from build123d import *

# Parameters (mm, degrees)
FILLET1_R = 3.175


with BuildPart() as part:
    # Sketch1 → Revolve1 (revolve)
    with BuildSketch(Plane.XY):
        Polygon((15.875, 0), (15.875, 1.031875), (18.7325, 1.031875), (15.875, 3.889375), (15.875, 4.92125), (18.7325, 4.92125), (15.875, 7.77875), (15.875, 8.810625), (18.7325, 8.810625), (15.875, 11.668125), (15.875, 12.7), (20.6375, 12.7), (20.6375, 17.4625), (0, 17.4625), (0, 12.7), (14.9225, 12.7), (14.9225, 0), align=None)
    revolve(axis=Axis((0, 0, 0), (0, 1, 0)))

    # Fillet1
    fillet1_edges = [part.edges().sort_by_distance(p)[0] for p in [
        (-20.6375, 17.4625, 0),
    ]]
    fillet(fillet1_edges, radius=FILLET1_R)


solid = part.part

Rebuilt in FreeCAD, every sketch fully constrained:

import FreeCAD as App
import Part
import Sketcher
Q = App.Units.Quantity


def edges_at(feature, points):
    """Names of the edges that pass closest to the given points."""
    edges = feature.Shape.Edges
    near = lambda p: min(range(len(edges)), key=lambda i: edges[i].distToShape(Part.Vertex(*p))[0])
    return sorted({f"Edge{near(p) + 1}" for p in points})


def add_polygon(sketch, points):
    """Adds a closed chain of lines whose ends are joined by coincident constraints."""
    first, n = sketch.GeometryCount, len(points)
    for a, b in zip(points, points[1:] + points[:1]):
        sketch.addGeometry(Part.LineSegment(App.Vector(*a, 0), App.Vector(*b, 0)), False)
    for i in range(n):
        sketch.addConstraint(Sketcher.Constraint("Coincident", first + i, 2, first + (i + 1) % n, 1))

doc = App.newDocument("Part")
body = doc.addObject("PartDesign::Body", "Body")

# Sketch on XY plane
sketch1 = doc.addObject("Sketcher::SketchObject", "Sketch")
body.addObject(sketch1)
sketch1.AttachmentSupport = (doc.XY_Plane, [""])
sketch1.MapMode = "FlatFace"
add_polygon(sketch1, [(15.875, 0), (15.875, 1.031875), (18.7325, 1.031875), (15.875, 3.889375), (15.875, 4.92125), (18.7325, 4.92125), (15.875, 7.77875), (15.875, 8.810625), (18.7325, 8.810625), (15.875, 11.668125), (15.875, 12.7), (20.6375, 12.7), (20.6375, 17.4625), (0, 17.4625), (0, 12.7), (14.9225, 12.7), (14.9225, 0)])  # lines 0-16
sketch1.addConstraint([
    Sketcher.Constraint("Vertical", 0),
    Sketcher.Constraint("Horizontal", 1),
    Sketcher.Constraint("Vertical", 3),
    Sketcher.Constraint("Horizontal", 4),
    Sketcher.Constraint("Vertical", 6),
    Sketcher.Constraint("Horizontal", 7),
    Sketcher.Constraint("Vertical", 9),
    Sketcher.Constraint("Horizontal", 10),
    Sketcher.Constraint("Vertical", 11),
    Sketcher.Constraint("Horizontal", 12),
    Sketcher.Constraint("Vertical", 13),
    Sketcher.Constraint("Horizontal", 14),
    Sketcher.Constraint("Vertical", 15),
    Sketcher.Constraint("Horizontal", 16),
    Sketcher.Constraint("PointOnObject", 12, 2, -2),
    Sketcher.Constraint("PointOnObject", 15, 2, -1),
    Sketcher.Constraint("Parallel", 2, 5),
    Sketcher.Constraint("Parallel", 5, 8),
    Sketcher.Constraint("Horizontal", 10, 2, 13, 2),
    Sketcher.Constraint("Vertical", 0, 2, 2, 2),
    Sketcher.Constraint("Vertical", 1, 2, 4, 2),
    Sketcher.Constraint("Vertical", 3, 2, 5, 2),
    Sketcher.Constraint("Vertical", 4, 2, 7, 2),
    Sketcher.Constraint("Vertical", 6, 2, 8, 2),
    Sketcher.Constraint("Equal", 0, 3),
    Sketcher.Constraint("Equal", 3, 6),
    Sketcher.Constraint("Equal", 6, 9),
    Sketcher.Constraint("Equal", 10, 11),
    Sketcher.Constraint("DistanceY", 15, 2, 15, 1, Q("0.5 in")),
    Sketcher.Constraint("Angle", 2, Q("135 deg")),
    Sketcher.Constraint("DistanceX", 10, 1, 10, 2, Q("0.1875 in")),
    Sketcher.Constraint("DistanceX", 12, 2, 12, 1, Q("0.8125 in")),
    Sketcher.Constraint("DistanceX", 14, 2, 7, 2, Q("0.15 in")),
    Sketcher.Constraint("DistanceX", 1, 1, 1, 2, Q("0.1125 in")),
])
revolution = doc.addObject("PartDesign::Revolution", "Revolution")
body.addObject(revolution)
revolution.Profile = sketch1
revolution.ReferenceAxis = (sketch1, ["V_Axis"])
revolution.Angle = 360
doc.recompute()

fillet = doc.addObject("PartDesign::Fillet", "Fillet")
body.addObject(fillet)
fillet.Base = (revolution, edges_at(revolution, [(-20.637, 17.462, 0)]))
fillet.Radius = Q("0.125 in")

doc.recompute()
